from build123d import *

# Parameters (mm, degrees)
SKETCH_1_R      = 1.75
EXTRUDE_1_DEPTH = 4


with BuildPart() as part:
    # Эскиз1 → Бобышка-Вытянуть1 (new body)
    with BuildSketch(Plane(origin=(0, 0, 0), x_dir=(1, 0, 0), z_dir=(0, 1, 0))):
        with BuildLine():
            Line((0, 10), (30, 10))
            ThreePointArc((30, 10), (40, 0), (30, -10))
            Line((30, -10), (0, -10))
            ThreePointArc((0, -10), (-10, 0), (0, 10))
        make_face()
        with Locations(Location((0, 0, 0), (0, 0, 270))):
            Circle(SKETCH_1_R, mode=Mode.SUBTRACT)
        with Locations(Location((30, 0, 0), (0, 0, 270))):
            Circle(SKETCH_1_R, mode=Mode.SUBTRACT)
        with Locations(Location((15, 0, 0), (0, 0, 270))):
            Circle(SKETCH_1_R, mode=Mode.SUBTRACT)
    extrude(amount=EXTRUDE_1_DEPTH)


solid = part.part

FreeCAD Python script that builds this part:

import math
import FreeCAD as App
import Part
import Sketcher
Q = App.Units.Quantity

doc = App.newDocument("Part")
body = doc.addObject("PartDesign::Body", "Body")

# Sketch on XZ plane
sketch1 = body.newObject("Sketcher::SketchObject", "Sketch")
sketch1.AttachmentSupport = (doc.getObject("XZ_Plane"), [""])
sketch1.MapMode = "FlatFace"
sketch1.addGeometry([
    Part.LineSegment(App.Vector(30, -10, 0), App.Vector(0, -10, 0)),  # 0
    Part.ArcOfCircle(Part.Circle(App.Vector(0, 0, 0), App.Vector(0, 0, 1), 10), math.radians(90), math.radians(270)),  # 1
    Part.LineSegment(App.Vector(0, 10, 0), App.Vector(30, 10, 0)),  # 2
    Part.ArcOfCircle(Part.Circle(App.Vector(30, 0, 0), App.Vector(0, 0, 1), 10), math.radians(-90), math.radians(90)),  # 3
    Part.Circle(App.Vector(30, 0, 0), App.Vector(0, 0, 1), 1.8),  # 4
    Part.Circle(App.Vector(15, 0, 0), App.Vector(0, 0, 1), 1.8),  # 5
    Part.Circle(App.Vector(0, 0, 0), App.Vector(0, 0, 1), 1.8),  # 6
], False)
sketch1.addConstraint([
    Sketcher.Constraint("Tangent", 0, 2, 1, 2),
    Sketcher.Constraint("Tangent", 1, 1, 2, 1),
    Sketcher.Constraint("Tangent", 2, 2, 3, 2),
    Sketcher.Constraint("Tangent", 3, 1, 0, 1),
    Sketcher.Constraint("Horizontal", 0),
    Sketcher.Constraint("Horizontal", 2),
    Sketcher.Constraint("Coincident", 1, 3, -1, 1),
    Sketcher.Constraint("Coincident", 6, 3, -1, 1),
    Sketcher.Constraint("Coincident", 4, 3, 3, 3),
    Sketcher.Constraint("Equal", 4, 5),
    Sketcher.Constraint("Equal", 5, 6),
    Sketcher.Constraint("PointOnObject", 5, 3, -1),
    Sketcher.Constraint("Radius", 1, Q("10 mm")),
    Sketcher.Constraint("Diameter", 4, Q("3.5 mm")),
    Sketcher.Constraint("DistanceX", 0, 2, 0, 1, Q("30 mm")),
    Sketcher.Constraint("DistanceX", -1, 1, 5, 3, Q("15 mm")),
])
pad1 = body.newObject("PartDesign::Pad", "Pad")
pad1.Profile = sketch1
pad1.Length = 4
pad1.Reversed = True

doc.recompute()
